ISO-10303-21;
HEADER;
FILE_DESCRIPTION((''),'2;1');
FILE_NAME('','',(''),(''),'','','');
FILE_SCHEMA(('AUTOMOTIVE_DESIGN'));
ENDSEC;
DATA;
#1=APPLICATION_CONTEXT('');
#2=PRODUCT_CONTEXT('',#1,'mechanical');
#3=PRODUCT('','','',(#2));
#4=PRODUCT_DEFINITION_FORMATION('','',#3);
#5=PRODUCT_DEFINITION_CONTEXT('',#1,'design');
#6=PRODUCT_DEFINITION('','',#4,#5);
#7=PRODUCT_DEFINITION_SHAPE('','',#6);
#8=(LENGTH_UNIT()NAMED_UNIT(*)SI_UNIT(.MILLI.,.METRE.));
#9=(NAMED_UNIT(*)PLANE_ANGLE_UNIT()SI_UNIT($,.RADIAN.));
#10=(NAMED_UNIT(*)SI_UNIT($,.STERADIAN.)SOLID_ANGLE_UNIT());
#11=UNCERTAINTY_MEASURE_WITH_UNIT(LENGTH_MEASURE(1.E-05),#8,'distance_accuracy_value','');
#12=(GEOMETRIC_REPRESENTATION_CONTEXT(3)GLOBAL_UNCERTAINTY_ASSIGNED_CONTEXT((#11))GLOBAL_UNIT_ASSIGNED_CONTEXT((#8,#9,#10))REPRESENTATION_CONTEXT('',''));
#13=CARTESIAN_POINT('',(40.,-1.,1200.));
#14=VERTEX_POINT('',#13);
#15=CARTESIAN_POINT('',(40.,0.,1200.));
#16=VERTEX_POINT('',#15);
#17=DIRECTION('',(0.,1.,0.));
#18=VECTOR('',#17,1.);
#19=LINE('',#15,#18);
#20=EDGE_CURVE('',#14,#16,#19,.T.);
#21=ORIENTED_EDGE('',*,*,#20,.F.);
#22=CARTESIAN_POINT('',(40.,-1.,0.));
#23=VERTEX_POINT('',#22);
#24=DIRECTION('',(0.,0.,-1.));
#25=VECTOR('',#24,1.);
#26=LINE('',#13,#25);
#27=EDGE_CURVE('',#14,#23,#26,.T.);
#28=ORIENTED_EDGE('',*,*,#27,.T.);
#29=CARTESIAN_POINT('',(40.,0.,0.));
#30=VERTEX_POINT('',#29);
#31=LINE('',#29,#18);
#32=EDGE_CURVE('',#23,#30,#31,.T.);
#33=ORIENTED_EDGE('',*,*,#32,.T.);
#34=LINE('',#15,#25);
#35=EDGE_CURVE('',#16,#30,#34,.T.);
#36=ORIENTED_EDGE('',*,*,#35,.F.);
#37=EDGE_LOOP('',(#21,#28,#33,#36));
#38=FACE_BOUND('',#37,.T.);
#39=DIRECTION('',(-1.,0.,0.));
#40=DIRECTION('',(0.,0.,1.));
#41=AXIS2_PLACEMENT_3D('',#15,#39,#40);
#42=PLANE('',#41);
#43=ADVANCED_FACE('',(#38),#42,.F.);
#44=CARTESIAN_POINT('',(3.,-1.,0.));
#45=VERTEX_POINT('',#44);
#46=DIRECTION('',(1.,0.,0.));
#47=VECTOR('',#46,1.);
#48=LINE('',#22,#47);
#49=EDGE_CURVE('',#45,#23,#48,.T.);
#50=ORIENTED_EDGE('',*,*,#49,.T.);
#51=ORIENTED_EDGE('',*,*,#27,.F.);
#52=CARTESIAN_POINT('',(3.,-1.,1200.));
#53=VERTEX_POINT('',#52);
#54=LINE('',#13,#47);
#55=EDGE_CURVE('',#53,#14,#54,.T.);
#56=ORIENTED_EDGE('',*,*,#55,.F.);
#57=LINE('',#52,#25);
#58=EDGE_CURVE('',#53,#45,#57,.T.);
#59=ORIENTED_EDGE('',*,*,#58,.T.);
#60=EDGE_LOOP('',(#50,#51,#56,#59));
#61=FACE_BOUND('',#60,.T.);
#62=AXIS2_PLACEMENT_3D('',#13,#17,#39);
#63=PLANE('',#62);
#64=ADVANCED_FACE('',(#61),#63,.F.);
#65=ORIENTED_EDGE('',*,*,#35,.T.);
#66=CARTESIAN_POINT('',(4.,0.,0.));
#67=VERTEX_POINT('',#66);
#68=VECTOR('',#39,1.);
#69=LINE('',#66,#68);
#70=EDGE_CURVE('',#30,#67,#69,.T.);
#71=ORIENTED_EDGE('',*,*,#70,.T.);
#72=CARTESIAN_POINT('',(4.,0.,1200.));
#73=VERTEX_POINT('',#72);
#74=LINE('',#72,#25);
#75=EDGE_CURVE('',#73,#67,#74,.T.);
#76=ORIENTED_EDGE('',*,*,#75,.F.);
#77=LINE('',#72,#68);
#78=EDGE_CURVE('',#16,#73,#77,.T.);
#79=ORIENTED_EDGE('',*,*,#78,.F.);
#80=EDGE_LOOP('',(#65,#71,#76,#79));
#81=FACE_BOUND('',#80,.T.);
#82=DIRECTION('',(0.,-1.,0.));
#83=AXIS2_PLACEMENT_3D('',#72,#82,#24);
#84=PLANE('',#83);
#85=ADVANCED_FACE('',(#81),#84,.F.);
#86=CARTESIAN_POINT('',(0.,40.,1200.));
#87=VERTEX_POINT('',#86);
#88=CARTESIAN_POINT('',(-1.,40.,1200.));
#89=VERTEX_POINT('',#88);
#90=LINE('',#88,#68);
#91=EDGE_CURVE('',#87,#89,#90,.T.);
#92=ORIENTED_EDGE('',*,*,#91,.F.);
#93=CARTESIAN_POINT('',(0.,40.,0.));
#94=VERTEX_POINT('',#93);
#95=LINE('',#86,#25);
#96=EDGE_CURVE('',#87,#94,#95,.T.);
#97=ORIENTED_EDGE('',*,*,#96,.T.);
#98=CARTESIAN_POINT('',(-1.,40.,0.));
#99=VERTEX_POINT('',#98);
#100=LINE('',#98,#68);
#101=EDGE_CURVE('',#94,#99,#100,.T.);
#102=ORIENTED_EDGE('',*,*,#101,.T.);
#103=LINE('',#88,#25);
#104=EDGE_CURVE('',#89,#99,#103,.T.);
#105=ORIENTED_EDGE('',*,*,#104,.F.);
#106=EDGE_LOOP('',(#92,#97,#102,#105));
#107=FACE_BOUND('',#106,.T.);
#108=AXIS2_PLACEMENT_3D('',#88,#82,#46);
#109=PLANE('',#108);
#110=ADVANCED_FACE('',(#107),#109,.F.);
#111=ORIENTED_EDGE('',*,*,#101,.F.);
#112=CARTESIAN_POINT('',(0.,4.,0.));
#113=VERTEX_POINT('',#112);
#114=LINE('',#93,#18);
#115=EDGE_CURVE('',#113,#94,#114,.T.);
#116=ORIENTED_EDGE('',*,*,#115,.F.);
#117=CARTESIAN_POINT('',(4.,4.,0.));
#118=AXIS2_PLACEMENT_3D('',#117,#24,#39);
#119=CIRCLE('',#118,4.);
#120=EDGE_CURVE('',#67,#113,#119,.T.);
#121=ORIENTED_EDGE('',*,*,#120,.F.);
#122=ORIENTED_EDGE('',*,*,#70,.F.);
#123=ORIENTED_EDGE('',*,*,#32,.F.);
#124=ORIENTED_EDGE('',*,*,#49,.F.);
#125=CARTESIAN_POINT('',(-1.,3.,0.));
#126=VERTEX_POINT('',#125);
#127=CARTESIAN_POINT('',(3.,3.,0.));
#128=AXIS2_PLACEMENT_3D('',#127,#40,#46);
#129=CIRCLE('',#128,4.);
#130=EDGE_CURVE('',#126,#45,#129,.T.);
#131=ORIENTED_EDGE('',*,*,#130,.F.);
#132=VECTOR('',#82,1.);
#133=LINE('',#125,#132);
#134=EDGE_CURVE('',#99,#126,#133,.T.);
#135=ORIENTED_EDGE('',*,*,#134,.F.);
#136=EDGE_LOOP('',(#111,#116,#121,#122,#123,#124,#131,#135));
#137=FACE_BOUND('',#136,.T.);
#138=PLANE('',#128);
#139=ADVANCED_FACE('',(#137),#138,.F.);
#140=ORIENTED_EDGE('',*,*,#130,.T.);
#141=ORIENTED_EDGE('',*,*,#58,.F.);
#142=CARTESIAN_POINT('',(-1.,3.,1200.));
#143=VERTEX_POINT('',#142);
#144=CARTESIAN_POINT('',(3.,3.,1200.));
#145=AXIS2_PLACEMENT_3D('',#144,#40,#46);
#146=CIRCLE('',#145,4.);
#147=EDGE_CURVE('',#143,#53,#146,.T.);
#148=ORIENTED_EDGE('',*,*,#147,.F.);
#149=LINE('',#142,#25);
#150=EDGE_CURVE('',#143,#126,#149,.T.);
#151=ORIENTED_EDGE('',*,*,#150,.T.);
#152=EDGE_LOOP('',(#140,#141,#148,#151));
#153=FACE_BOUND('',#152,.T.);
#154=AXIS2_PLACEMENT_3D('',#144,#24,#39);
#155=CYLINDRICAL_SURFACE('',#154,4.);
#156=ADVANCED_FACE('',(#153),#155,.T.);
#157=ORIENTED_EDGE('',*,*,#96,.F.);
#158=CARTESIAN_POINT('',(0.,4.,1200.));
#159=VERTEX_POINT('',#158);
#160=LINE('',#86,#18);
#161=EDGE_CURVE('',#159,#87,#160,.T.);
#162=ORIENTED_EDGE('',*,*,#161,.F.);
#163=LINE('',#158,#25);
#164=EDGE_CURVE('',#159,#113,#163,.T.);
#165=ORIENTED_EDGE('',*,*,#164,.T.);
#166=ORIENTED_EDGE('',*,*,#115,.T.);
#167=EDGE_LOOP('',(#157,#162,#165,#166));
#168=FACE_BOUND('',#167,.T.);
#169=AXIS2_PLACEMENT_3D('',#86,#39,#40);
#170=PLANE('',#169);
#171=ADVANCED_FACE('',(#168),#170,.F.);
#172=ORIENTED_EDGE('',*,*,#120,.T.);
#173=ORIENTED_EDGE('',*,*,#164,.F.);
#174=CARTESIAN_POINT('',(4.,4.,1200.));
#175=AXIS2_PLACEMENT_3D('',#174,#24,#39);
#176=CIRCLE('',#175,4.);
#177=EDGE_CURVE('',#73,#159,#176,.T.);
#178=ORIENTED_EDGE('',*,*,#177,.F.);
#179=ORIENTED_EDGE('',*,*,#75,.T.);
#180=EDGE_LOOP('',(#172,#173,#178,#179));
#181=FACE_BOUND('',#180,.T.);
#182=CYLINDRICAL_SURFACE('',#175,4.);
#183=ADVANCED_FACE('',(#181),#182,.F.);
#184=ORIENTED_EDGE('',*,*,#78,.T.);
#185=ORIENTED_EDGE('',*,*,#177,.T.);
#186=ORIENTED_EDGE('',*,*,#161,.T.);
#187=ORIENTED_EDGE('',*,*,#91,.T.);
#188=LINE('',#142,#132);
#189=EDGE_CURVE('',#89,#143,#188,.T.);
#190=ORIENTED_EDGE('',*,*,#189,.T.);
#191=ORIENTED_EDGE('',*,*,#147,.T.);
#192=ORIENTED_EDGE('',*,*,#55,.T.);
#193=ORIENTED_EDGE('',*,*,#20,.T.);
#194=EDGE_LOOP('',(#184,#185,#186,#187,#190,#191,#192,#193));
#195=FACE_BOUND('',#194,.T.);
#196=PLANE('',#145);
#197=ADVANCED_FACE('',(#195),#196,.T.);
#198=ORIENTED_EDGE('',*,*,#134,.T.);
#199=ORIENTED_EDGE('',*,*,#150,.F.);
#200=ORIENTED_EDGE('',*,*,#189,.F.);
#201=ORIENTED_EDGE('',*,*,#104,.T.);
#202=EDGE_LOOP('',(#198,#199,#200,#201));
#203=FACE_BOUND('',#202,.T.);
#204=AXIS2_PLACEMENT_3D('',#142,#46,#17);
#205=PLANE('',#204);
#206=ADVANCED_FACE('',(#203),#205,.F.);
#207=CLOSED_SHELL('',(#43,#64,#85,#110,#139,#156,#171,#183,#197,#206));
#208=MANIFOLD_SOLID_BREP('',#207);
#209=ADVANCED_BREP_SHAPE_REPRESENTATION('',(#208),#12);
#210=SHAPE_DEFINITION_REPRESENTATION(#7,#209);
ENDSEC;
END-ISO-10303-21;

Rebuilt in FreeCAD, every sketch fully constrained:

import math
import FreeCAD as App
import Part
import Sketcher

V = App.Vector

doc = App.newDocument("Part")
body = doc.addObject("PartDesign::Body", "Body")

sketch1 = doc.addObject("Sketcher::SketchObject", "Sketch")
body.addObject(sketch1)
sketch1.AttachmentSupport = (doc.XY_Plane, [""])
sketch1.MapMode = "FlatFace"
sketch1.addGeometry([
    Part.LineSegment(V(40, 0, 0), V(4, 0, 0)),
    Part.ArcOfCircle(Part.Circle(V(4, 4, 0), V(0, 0, 1), 4), math.radians(180), math.radians(270)),
    Part.LineSegment(V(0, 4, 0), V(0, 40, 0)),
    Part.LineSegment(V(0, 40, 0), V(-1, 40, 0)),
    Part.LineSegment(V(-1, 40, 0), V(-1, 3, 0)),
    Part.ArcOfCircle(Part.Circle(V(3, 3, 0), V(0, 0, 1), 4), math.radians(180), math.radians(270)),
    Part.LineSegment(V(3, -1, 0), V(40, -1, 0)),
    Part.LineSegment(V(40, -1, 0), V(40, 0, 0)),
], False)
sketch1.addConstraint([
    Sketcher.Constraint("Tangent", 0, 2, 1, 2),
    Sketcher.Constraint("Tangent", 1, 1, 2, 1),
    Sketcher.Constraint("Coincident", 2, 2, 3, 1),
    Sketcher.Constraint("Coincident", 3, 2, 4, 1),
    Sketcher.Constraint("Tangent", 4, 2, 5, 1),
    Sketcher.Constraint("Tangent", 5, 2, 6, 1),
    Sketcher.Constraint("Coincident", 6, 2, 7, 1),
    Sketcher.Constraint("Coincident", 7, 2, 0, 1),
    Sketcher.Constraint("Horizontal", 0),
    Sketcher.Constraint("Vertical", 2),
    Sketcher.Constraint("Horizontal", 3),
    Sketcher.Constraint("Vertical", 4),
    Sketcher.Constraint("Horizontal", 6),
    Sketcher.Constraint("Vertical", 7),
    Sketcher.Constraint("Equal", 1, 5),
    Sketcher.Constraint("PointOnObject", 0, 2, -1),
    Sketcher.Constraint("PointOnObject", 1, 1, -2),
    Sketcher.Constraint("Equal", 0, 2),
    Sketcher.Constraint("Equal", 6, 4),
    Sketcher.Constraint("Radius", 1, 4.0),
    Sketcher.Constraint("DistanceX", 0, 2, 0, 1, 36.0),
    Sketcher.Constraint("DistanceX", 3, 2, 3, 1, 1.0),
])
pad1 = doc.addObject("PartDesign::Pad", "Pad")
body.addObject(pad1)
pad1.Profile = sketch1
pad1.Length = 1200

doc.recompute()
